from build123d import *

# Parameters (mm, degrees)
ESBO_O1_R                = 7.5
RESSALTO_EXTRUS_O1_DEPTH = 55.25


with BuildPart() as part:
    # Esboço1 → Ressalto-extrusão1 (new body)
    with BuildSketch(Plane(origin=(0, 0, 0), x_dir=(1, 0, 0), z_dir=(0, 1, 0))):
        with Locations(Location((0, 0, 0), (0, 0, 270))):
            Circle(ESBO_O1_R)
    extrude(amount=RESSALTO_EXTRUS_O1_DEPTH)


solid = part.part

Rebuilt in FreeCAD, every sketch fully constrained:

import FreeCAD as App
import Part
import Sketcher
Q = App.Units.Quantity

doc = App.newDocument("Part")
body = doc.addObject("PartDesign::Body", "Body")

# Sketch on XZ plane
sketch1 = doc.addObject("Sketcher::SketchObject", "Sketch")
body.addObject(sketch1)
sketch1.AttachmentSupport = (doc.XZ_Plane, [""])
sketch1.MapMode = "FlatFace"
sketch1.addGeometry(Part.Circle(App.Vector(0, 0, 0), App.Vector(0, 0, 1), 8), False)
sketch1.addConstraint([
    Sketcher.Constraint("Coincident", 0, 3, -1, 1),
    Sketcher.Constraint("Diameter", 0, Q("15 mm")),
])
pad1 = doc.addObject("PartDesign::Pad", "Pad")
body.addObject(pad1)
pad1.Profile = sketch1
pad1.Length = 55.25
pad1.Reversed = True

doc.recompute()
